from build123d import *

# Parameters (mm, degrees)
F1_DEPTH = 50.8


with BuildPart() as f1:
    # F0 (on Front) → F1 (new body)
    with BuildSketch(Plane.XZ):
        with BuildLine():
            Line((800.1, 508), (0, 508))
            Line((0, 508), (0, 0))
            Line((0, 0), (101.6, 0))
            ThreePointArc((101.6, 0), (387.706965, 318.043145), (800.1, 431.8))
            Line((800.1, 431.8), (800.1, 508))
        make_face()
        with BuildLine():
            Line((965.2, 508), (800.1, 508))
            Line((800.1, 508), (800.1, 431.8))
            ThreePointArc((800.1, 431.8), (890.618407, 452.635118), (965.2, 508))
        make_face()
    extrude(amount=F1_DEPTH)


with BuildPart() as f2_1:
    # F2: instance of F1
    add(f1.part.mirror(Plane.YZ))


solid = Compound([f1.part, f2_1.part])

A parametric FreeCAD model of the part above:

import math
import FreeCAD as App
import Part
import Sketcher

V = App.Vector
Q = App.Units.Quantity

doc = App.newDocument("Part")
params = doc.addObject("Spreadsheet::Sheet", "Params")
for row, (alias, value) in enumerate([
    ("sketch1_radius", "30.0000001 in"),
    ("sketch1_width", "4 in"),
    ("sketch1_width2", "38 in"),
    ("sketch1_height", "20 in"),
    ("pad1_length", "2 in"),
], start=1):
    params.set(f"A{row}", alias)
    params.set(f"B{row}", "=" + value)
    params.setAlias(f"B{row}", alias)

body = doc.addObject("PartDesign::Body", "Body")

# Sketch on XZ plane
sketch1 = doc.addObject("Sketcher::SketchObject", "Sketch")
body.addObject(sketch1)
sketch1.AttachmentSupport = (doc.XZ_Plane, [""])
sketch1.MapMode = "FlatFace"
sketch1.addGeometry(Part.LineSegment(V(0, 508, 0), V(0, 0, 0)), False)
sketch1.addGeometry(Part.LineSegment(V(0, 0, 0), V(102, 0, 0)), False)
sketch1.addGeometry(Part.ArcOfCircle(Part.Circle(V(788, -330, 0), V(0, 0, 1), 762), math.radians(89), math.radians(154)), False)
sketch1.addGeometry(Part.ArcOfCircle(Part.Circle(V(796, 659, 0), V(0, 0, 1), 227), math.radians(-89), math.radians(-42)), False)
sketch1.addGeometry(Part.LineSegment(V(965, 508, 0), V(0, 508, 0)), False)
sketch1.addConstraint(Sketcher.Constraint("Coincident", 0, 2, 1, 1))
sketch1.addConstraint(Sketcher.Constraint("Coincident", 1, 2, 2, 2))
sketch1.addConstraint(Sketcher.Constraint("Coincident", 2, 1, 3, 1))
sketch1.addConstraint(Sketcher.Constraint("Coincident", 3, 2, 4, 1))
sketch1.addConstraint(Sketcher.Constraint("Coincident", 4, 2, 0, 1))
sketch1.addConstraint(Sketcher.Constraint("Vertical", 0))
sketch1.addConstraint(Sketcher.Constraint("Horizontal", 1))
sketch1.addConstraint(Sketcher.Constraint("Horizontal", 4))
sketch1.addConstraint(Sketcher.Constraint("Coincident", 0, 2, -1, 1))
sketch1.addConstraint(Sketcher.Constraint("Radius", 2, Q("30.0000001 in")))
sketch1.addConstraint(Sketcher.Constraint("DistanceX", 1, 1, 1, 2, Q("4 in")))
sketch1.addConstraint(Sketcher.Constraint("DistanceX", 4, 2, 4, 1, Q("38 in")))
sketch1.addConstraint(Sketcher.Constraint("DistanceY", 0, 2, 0, 1, Q("20 in")))
sketch1.addConstraint(Sketcher.Constraint("DistanceY", -1, 1, 2, 1, Q("17 in")))
sketch1.addConstraint(Sketcher.Constraint("DistanceX", -1, 1, 2, 1, Q("31.5 in")))
sketch1.addConstraint(Sketcher.Constraint("Radius", 3, 226.864766))
sketch1.setExpression("Constraints[9]", "Params.sketch1_radius")
sketch1.setExpression("Constraints[10]", "Params.sketch1_width")
sketch1.setExpression("Constraints[11]", "Params.sketch1_width2")
sketch1.setExpression("Constraints[12]", "Params.sketch1_height")
pad1 = doc.addObject("PartDesign::Pad", "Pad")
body.addObject(pad1)
pad1.Profile = sketch1
pad1.setExpression("Length", "Params.pad1_length")
body2 = doc.addObject("PartDesign::Body", "Body001")
doc.recompute()

mirroring = doc.addObject("Part::Mirroring", "Mirroring")
mirroring.Source = body
mirroring.Base = V(0, 0, 0)
mirroring.Normal = V(1, 0, 0)
body2.BaseFeature = mirroring
doc.recompute()
mirroring.Visibility = False

doc.recompute()
